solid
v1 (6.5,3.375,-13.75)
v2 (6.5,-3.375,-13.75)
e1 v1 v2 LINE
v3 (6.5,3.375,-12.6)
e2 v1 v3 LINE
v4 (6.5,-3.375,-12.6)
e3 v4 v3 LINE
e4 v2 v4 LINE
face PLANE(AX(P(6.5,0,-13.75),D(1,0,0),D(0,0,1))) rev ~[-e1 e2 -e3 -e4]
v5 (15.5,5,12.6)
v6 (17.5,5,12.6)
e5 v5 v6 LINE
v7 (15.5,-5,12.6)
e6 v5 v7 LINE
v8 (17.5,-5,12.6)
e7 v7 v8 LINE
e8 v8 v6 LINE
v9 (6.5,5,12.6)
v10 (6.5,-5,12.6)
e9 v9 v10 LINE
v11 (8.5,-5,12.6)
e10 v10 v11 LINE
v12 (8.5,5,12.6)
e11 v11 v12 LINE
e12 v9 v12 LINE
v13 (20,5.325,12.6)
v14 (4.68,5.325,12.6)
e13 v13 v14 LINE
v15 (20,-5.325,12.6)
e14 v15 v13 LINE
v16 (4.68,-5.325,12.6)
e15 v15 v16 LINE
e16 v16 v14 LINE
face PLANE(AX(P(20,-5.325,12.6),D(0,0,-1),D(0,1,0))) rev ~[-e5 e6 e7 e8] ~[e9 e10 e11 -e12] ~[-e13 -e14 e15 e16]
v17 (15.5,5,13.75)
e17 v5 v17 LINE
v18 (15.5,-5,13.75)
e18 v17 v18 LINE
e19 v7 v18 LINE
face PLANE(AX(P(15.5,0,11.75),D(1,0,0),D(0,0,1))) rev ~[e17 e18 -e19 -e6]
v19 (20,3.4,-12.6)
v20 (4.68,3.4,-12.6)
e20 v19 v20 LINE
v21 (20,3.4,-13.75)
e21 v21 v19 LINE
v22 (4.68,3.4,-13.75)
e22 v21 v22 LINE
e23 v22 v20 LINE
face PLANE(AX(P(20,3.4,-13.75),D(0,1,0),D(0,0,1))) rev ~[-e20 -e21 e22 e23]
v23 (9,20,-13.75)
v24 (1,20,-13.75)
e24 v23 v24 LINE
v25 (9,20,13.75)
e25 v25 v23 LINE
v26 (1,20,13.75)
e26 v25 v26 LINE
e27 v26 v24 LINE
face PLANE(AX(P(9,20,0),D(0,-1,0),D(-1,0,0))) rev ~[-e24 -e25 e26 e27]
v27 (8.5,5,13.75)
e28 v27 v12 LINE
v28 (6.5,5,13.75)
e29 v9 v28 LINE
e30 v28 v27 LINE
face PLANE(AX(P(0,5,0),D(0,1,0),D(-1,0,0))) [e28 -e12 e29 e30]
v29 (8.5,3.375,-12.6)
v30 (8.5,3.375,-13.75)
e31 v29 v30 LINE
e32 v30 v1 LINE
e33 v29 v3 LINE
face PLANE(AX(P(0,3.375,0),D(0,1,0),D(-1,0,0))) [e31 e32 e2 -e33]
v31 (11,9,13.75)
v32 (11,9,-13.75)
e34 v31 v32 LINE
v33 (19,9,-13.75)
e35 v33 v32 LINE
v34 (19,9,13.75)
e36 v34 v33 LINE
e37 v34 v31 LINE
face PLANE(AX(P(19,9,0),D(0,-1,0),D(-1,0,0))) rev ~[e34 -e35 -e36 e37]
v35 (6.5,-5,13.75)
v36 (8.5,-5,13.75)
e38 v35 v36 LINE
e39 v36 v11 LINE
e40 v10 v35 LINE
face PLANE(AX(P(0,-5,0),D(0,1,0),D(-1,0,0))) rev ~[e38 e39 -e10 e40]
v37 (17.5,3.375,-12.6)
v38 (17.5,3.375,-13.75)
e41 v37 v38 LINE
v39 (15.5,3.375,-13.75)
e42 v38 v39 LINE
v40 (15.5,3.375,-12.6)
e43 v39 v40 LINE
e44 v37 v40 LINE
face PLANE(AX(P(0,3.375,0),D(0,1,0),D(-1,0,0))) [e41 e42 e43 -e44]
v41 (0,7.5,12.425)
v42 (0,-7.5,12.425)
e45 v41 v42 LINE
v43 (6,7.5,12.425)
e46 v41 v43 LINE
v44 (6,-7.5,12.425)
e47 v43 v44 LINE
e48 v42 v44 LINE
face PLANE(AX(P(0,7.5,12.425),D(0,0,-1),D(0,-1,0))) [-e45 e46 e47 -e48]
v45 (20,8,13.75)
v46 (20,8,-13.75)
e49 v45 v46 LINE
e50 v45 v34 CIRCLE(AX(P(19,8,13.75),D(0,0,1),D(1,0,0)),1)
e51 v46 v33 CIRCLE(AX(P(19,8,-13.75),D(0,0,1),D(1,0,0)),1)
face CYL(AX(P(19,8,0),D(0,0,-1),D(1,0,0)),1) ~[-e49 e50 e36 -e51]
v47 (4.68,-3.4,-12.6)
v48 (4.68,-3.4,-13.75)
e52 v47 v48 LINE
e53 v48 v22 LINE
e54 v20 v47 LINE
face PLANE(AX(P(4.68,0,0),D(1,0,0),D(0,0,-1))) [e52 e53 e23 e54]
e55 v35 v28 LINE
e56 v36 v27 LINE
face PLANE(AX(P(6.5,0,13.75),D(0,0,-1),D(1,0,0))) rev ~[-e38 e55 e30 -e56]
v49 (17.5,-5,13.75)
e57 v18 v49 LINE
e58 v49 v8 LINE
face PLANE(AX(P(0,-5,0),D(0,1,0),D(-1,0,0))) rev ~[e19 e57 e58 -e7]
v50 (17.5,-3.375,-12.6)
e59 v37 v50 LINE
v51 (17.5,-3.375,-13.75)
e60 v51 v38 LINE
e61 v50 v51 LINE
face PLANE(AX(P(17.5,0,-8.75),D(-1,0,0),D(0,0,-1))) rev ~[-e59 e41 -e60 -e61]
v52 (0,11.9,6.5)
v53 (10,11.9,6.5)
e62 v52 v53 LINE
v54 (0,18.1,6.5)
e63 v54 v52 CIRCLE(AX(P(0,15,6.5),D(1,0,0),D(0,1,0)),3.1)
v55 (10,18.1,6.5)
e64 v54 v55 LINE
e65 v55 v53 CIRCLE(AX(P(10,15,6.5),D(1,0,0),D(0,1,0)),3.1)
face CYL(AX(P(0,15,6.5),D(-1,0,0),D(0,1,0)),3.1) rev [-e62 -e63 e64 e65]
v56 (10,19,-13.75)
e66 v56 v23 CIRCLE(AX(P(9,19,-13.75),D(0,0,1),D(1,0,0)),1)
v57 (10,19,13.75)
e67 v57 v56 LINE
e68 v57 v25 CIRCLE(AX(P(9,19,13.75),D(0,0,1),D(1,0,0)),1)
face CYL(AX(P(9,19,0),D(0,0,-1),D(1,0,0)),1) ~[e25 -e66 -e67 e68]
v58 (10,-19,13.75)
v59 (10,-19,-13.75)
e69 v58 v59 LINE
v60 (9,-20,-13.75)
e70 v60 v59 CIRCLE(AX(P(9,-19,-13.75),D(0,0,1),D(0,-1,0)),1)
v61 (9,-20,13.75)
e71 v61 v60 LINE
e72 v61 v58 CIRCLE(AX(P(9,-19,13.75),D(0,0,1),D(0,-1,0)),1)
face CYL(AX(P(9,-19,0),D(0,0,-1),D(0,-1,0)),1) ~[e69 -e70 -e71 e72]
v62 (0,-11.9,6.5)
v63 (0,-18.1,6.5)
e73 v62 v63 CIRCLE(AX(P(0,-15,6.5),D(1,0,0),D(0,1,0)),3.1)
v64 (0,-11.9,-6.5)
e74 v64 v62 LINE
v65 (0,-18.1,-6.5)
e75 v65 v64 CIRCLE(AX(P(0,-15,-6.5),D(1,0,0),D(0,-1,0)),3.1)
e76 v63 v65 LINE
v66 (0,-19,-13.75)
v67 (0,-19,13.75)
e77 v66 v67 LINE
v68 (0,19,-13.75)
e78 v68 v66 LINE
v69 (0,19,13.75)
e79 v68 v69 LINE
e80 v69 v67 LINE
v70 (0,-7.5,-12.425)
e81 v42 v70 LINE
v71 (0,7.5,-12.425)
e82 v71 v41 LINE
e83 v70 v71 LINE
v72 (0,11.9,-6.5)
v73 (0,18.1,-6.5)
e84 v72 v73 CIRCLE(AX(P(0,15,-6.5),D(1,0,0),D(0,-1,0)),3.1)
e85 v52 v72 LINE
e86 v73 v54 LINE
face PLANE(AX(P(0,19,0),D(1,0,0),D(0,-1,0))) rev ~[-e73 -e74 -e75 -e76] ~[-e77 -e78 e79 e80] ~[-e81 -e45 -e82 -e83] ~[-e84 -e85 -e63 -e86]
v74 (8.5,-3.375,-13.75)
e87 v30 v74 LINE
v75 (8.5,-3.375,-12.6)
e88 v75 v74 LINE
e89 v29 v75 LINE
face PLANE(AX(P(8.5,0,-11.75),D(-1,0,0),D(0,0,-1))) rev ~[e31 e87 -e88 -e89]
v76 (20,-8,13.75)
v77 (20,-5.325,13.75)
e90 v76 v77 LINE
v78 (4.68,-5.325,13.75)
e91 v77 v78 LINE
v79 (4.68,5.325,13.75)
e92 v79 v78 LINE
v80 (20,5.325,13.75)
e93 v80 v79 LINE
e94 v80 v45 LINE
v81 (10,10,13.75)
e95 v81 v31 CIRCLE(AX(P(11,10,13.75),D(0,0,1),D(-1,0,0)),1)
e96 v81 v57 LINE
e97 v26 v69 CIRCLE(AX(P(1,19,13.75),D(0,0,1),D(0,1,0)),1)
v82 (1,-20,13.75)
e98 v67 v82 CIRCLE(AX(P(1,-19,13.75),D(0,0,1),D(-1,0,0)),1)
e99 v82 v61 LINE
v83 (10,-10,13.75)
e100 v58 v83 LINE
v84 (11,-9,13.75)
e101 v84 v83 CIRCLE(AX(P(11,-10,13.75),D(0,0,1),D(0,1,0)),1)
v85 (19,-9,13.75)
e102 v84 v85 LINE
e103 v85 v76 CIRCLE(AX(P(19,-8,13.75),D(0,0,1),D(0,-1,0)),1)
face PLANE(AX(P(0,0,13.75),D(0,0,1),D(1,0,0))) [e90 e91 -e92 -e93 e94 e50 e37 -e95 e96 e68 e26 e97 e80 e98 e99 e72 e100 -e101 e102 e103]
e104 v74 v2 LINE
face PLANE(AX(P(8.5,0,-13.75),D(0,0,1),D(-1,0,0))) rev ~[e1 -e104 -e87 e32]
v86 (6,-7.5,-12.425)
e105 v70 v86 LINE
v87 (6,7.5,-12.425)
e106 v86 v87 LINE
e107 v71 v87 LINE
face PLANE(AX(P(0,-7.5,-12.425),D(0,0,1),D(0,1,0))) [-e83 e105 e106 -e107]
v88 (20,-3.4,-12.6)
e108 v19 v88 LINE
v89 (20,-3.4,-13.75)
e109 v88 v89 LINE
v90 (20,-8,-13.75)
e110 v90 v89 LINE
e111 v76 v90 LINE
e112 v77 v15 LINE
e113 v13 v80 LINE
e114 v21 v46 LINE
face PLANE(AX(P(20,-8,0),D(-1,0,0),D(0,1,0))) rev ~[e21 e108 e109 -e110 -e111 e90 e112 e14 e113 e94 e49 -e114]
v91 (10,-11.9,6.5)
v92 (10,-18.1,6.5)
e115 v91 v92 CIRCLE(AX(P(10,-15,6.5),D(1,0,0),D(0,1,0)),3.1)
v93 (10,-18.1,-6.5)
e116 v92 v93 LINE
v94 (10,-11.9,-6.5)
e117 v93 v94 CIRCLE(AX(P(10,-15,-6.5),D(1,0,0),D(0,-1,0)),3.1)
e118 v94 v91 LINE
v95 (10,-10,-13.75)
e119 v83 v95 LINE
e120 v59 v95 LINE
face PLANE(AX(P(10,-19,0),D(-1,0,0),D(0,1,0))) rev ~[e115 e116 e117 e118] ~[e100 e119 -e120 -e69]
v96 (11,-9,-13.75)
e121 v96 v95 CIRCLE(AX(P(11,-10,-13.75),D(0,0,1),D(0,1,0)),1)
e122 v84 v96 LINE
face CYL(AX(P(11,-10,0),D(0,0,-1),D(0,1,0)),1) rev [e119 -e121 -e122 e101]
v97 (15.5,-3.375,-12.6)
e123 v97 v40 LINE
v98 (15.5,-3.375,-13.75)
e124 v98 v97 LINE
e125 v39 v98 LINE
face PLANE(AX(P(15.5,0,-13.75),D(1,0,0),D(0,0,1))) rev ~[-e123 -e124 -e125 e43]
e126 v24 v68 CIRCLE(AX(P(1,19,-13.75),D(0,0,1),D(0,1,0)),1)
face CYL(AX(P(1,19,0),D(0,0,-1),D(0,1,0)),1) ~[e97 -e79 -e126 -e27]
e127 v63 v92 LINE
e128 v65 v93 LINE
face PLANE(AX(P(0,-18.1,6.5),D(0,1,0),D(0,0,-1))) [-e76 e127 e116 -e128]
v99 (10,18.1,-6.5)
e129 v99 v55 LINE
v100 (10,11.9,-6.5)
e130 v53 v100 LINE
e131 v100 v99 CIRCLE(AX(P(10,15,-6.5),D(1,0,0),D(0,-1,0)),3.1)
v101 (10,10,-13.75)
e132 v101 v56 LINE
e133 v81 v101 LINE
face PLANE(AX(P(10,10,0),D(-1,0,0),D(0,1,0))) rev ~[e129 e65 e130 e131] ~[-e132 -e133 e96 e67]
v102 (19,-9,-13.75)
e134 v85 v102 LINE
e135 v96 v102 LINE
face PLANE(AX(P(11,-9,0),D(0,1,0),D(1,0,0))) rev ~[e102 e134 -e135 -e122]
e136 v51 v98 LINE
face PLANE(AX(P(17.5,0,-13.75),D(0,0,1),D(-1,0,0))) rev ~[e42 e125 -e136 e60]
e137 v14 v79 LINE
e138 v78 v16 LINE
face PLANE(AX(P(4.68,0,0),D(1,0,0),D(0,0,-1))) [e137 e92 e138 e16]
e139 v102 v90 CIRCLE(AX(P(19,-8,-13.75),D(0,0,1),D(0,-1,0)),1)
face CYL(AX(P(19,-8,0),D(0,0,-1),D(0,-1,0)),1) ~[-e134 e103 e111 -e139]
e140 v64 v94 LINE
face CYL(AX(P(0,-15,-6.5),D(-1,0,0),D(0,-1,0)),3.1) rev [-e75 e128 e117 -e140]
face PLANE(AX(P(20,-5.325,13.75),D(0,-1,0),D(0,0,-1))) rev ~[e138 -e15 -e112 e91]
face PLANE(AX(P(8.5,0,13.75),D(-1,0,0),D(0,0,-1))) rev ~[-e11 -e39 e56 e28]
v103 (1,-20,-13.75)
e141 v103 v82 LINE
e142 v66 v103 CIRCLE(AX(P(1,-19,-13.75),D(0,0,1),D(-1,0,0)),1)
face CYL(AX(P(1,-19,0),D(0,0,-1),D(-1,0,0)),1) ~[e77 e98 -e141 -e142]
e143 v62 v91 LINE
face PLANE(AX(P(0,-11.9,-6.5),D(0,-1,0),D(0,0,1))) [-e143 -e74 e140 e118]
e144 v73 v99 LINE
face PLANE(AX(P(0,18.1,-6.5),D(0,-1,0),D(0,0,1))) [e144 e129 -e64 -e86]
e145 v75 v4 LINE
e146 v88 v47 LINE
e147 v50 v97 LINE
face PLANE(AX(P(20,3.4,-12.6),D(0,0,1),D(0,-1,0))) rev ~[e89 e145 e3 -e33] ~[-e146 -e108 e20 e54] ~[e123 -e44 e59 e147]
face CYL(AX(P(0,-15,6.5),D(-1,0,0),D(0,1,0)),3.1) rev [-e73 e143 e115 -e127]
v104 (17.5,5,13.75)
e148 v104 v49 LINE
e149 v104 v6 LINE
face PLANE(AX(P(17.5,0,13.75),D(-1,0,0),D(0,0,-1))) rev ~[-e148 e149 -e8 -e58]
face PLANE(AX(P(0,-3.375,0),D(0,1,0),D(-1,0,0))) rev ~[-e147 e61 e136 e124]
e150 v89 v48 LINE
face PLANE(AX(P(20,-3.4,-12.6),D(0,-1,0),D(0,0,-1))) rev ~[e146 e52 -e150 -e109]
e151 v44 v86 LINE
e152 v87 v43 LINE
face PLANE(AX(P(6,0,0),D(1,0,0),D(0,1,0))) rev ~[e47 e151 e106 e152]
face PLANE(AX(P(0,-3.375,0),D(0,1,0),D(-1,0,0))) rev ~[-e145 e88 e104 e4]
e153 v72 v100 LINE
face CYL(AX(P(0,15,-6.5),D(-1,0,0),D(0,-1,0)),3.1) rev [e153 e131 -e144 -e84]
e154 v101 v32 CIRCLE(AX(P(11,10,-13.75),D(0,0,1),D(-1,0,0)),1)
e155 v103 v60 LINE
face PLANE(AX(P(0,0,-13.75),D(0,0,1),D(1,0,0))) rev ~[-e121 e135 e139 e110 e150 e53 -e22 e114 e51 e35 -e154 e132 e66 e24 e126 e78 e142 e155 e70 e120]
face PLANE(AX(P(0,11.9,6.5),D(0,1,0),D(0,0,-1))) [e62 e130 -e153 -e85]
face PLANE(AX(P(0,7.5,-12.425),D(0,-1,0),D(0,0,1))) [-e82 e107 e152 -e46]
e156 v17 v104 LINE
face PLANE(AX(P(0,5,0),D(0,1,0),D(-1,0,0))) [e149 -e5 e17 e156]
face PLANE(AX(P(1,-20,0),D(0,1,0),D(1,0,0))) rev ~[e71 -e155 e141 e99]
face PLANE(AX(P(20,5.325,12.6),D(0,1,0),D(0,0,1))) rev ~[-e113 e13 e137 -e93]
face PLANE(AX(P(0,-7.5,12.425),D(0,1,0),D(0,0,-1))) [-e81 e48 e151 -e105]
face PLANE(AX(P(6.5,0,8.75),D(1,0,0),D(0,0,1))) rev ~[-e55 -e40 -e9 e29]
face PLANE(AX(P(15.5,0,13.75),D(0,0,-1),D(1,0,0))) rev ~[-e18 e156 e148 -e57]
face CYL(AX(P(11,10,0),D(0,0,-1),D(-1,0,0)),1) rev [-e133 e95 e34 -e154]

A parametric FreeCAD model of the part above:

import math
import FreeCAD as App
import Part
import Sketcher


def add_polygon(sketch, points):
    """Adds a closed chain of lines whose ends are joined by coincident constraints."""
    first, n = sketch.GeometryCount, len(points)
    for a, b in zip(points, points[1:] + points[:1]):
        sketch.addGeometry(Part.LineSegment(App.Vector(*a, 0), App.Vector(*b, 0)), False)
    for i in range(n):
        sketch.addConstraint(Sketcher.Constraint("Coincident", first + i, 2, first + (i + 1) % n, 1))

doc = App.newDocument("Part")
body = doc.addObject("PartDesign::Body", "Body")

sketch1 = body.newObject("Sketcher::SketchObject", "Sketch")
sketch1.AttachmentSupport = (doc.getObject("XY_Plane"), [""])
sketch1.MapMode = "FlatFace"
sketch1.addGeometry([
    Part.ArcOfCircle(Part.Circle(App.Vector(1, 19, 0), App.Vector(0, 0, 1), 1), math.radians(90), math.radians(180)),
    Part.LineSegment(App.Vector(0, 19, 0), App.Vector(0, -19, 0)),
    Part.ArcOfCircle(Part.Circle(App.Vector(1, -19, 0), App.Vector(0, 0, 1), 1), math.radians(180), math.radians(270)),
    Part.LineSegment(App.Vector(1, -20, 0), App.Vector(9, -20, 0)),
    Part.ArcOfCircle(Part.Circle(App.Vector(9, -19, 0), App.Vector(0, 0, 1), 1), math.radians(-90), math.radians(0)),
    Part.LineSegment(App.Vector(10, -19, 0), App.Vector(10, -10, 0)),
    Part.ArcOfCircle(Part.Circle(App.Vector(11, -10, 0), App.Vector(0, 0, 1), 1), math.radians(90), math.radians(180)),
    Part.LineSegment(App.Vector(11, -9, 0), App.Vector(19, -9, 0)),
    Part.ArcOfCircle(Part.Circle(App.Vector(19, -8, 0), App.Vector(0, 0, 1), 1), math.radians(-90), math.radians(0)),
    Part.LineSegment(App.Vector(20, -8, 0), App.Vector(20, 8, 0)),
    Part.ArcOfCircle(Part.Circle(App.Vector(19, 8, 0), App.Vector(0, 0, 1), 1), math.radians(0), math.radians(90)),
    Part.LineSegment(App.Vector(19, 9, 0), App.Vector(11, 9, 0)),
    Part.ArcOfCircle(Part.Circle(App.Vector(11, 10, 0), App.Vector(0, 0, 1), 1), math.radians(180), math.radians(270)),
    Part.LineSegment(App.Vector(10, 10, 0), App.Vector(10, 19, 0)),
    Part.ArcOfCircle(Part.Circle(App.Vector(9, 19, 0), App.Vector(0, 0, 1), 1), math.radians(0), math.radians(90)),
    Part.LineSegment(App.Vector(9, 20, 0), App.Vector(1, 20, 0)),
], False)
sketch1.addConstraint([
    Sketcher.Constraint("Tangent", 0, 2, 1, 1),
    Sketcher.Constraint("Tangent", 1, 2, 2, 1),
    Sketcher.Constraint("Tangent", 2, 2, 3, 1),
    Sketcher.Constraint("Tangent", 3, 2, 4, 1),
    Sketcher.Constraint("Tangent", 4, 2, 5, 1),
    Sketcher.Constraint("Tangent", 5, 2, 6, 2),
    Sketcher.Constraint("Tangent", 6, 1, 7, 1),
    Sketcher.Constraint("Tangent", 7, 2, 8, 1),
    Sketcher.Constraint("Tangent", 8, 2, 9, 1),
    Sketcher.Constraint("Tangent", 9, 2, 10, 1),
    Sketcher.Constraint("Tangent", 10, 2, 11, 1),
    Sketcher.Constraint("Tangent", 11, 2, 12, 2),
    Sketcher.Constraint("Tangent", 12, 1, 13, 1),
    Sketcher.Constraint("Tangent", 13, 2, 14, 1),
    Sketcher.Constraint("Tangent", 14, 2, 15, 1),
    Sketcher.Constraint("Tangent", 15, 2, 0, 1),
    Sketcher.Constraint("Vertical", 1),
    Sketcher.Constraint("Horizontal", 3),
    Sketcher.Constraint("Vertical", 5),
    Sketcher.Constraint("Horizontal", 7),
    Sketcher.Constraint("Vertical", 9),
    Sketcher.Constraint("Horizontal", 11),
    Sketcher.Constraint("Vertical", 13),
    Sketcher.Constraint("Horizontal", 15),
    Sketcher.Constraint("Equal", 0, 2),
    Sketcher.Constraint("Equal", 2, 4),
    Sketcher.Constraint("Equal", 4, 6),
    Sketcher.Constraint("Equal", 6, 8),
    Sketcher.Constraint("Equal", 8, 10),
    Sketcher.Constraint("Equal", 10, 12),
    Sketcher.Constraint("Equal", 12, 14),
    Sketcher.Constraint("Symmetric", 0, 2, 1, 2, -1, 1),
    Sketcher.Constraint("Symmetric", 6, 3, 12, 3, -1),
    Sketcher.Constraint("Equal", 3, 7),
    Sketcher.Constraint("Radius", 0, 1.0),
    Sketcher.Constraint("DistanceX", 3, 1, 3, 2, 8.0),
    Sketcher.Constraint("DistanceY", 1, 2, 1, 1, 38.0),
    Sketcher.Constraint("DistanceY", 5, 1, 5, 2, 9.0),
])
pad1 = body.newObject("PartDesign::Pad", "Pad")
pad1.Profile = sketch1
pad1.Length = 27.5
pad1.Midplane = True

sketch2 = body.newObject("Sketcher::SketchObject", "Sketch001")
sketch2.AttachmentSupport = (doc.getObject("YZ_Plane"), [""])
sketch2.MapMode = "FlatFace"
sketch2.addGeometry([
    Part.LineSegment(App.Vector(18.1, -6.5, 0), App.Vector(18.1, 6.5, 0)),
    Part.ArcOfCircle(Part.Circle(App.Vector(15, 6.5, 0), App.Vector(0, 0, 1), 3.1), math.radians(0), math.radians(180)),
    Part.LineSegment(App.Vector(11.9, 6.5, 0), App.Vector(11.9, -6.5, 0)),
    Part.ArcOfCircle(Part.Circle(App.Vector(15, -6.5, 0), App.Vector(0, 0, 1), 3.1), math.radians(180), math.radians(360)),
], False)
sketch2.addConstraint([
    Sketcher.Constraint("Tangent", 0, 2, 1, 1),
    Sketcher.Constraint("Tangent", 1, 2, 2, 1),
    Sketcher.Constraint("Tangent", 2, 2, 3, 1),
    Sketcher.Constraint("Tangent", 3, 2, 0, 1),
    Sketcher.Constraint("Vertical", 0),
    Sketcher.Constraint("Vertical", 2),
    Sketcher.Constraint("Radius", 1, 3.1),
    Sketcher.Constraint("DistanceY", 0, 1, 0, 2, 13.0),
    Sketcher.Constraint("DistanceX", -1, 1, 1, 3, 15.0),
    Sketcher.Constraint("DistanceY", -1, 1, 1, 3, 6.5),
])
pocket1 = body.newObject("PartDesign::Pocket", "Pocket")
pocket1.Profile = sketch2
pocket1.Length = 10
pocket1.Reversed = True

sketch3 = body.newObject("Sketcher::SketchObject", "Sketch002")
sketch3.AttachmentSupport = (doc.getObject("YZ_Plane"), [""])
sketch3.MapMode = "FlatFace"
sketch3.addGeometry([
    Part.LineSegment(App.Vector(-11.9, -6.5, 0), App.Vector(-11.9, 6.5, 0)),
    Part.ArcOfCircle(Part.Circle(App.Vector(-15, 6.5, 0), App.Vector(0, 0, 1), 3.1), math.radians(0), math.radians(180)),
    Part.LineSegment(App.Vector(-18.1, 6.5, 0), App.Vector(-18.1, -6.5, 0)),
    Part.ArcOfCircle(Part.Circle(App.Vector(-15, -6.5, 0), App.Vector(0, 0, 1), 3.1), math.radians(180), math.radians(360)),
], False)
sketch3.addConstraint([
    Sketcher.Constraint("Tangent", 0, 2, 1, 1),
    Sketcher.Constraint("Tangent", 1, 2, 2, 1),
    Sketcher.Constraint("Tangent", 2, 2, 3, 1),
    Sketcher.Constraint("Tangent", 3, 2, 0, 1),
    Sketcher.Constraint("Vertical", 0),
    Sketcher.Constraint("Vertical", 2),
    Sketcher.Constraint("Radius", 1, 3.1),
    Sketcher.Constraint("DistanceY", 0, 1, 0, 2, 13.0),
    Sketcher.Constraint("DistanceX", 1, 3, -1, 1, 15.0),
    Sketcher.Constraint("DistanceY", -1, 1, 1, 3, 6.5),
])
pocket2 = body.newObject("PartDesign::Pocket", "Pocket001")
pocket2.Profile = sketch3
pocket2.Length = 10
pocket2.Reversed = True

sketch4 = body.newObject("Sketcher::SketchObject", "Sketch003")
sketch4.AttachmentSupport = (doc.getObject("YZ_Plane"), [""])
sketch4.MapMode = "FlatFace"
sketch4.AttachmentOffset = App.Placement(App.Vector(0, 0, 20), App.Rotation())
add_polygon(sketch4, [(5.3, 12.6), (5.3, 13.8), (-5.3, 13.8), (-5.3, 12.6)])
sketch4.addConstraint([
    Sketcher.Constraint("Vertical", 0),
    Sketcher.Constraint("Horizontal", 1),
    Sketcher.Constraint("Vertical", 2),
    Sketcher.Constraint("Horizontal", 3),
    Sketcher.Constraint("DistanceX", 1, 2, 1, 1, 10.65),
    Sketcher.Constraint("DistanceY", 0, 1, 0, 2, 1.15),
    Sketcher.Constraint("DistanceY", -1, 1, 2, 2, 12.6),
    Sketcher.Constraint("DistanceX", -1, 1, 0, 2, 5.325),
])
pocket3 = body.newObject("PartDesign::Pocket", "Pocket002")
pocket3.Profile = sketch4
pocket3.Length = 15.32

sketch5 = body.newObject("Sketcher::SketchObject", "Sketch004")
sketch5.AttachmentSupport = (doc.getObject("YZ_Plane"), [""])
sketch5.MapMode = "FlatFace"
sketch5.AttachmentOffset = App.Placement(App.Vector(0, 0, 20), App.Rotation())
add_polygon(sketch5, [(3.4, -13.8), (3.4, -12.6), (-3.4, -12.6), (-3.4, -13.8)])
sketch5.addConstraint([
    Sketcher.Constraint("Vertical", 0),
    Sketcher.Constraint("Horizontal", 1),
    Sketcher.Constraint("Vertical", 2),
    Sketcher.Constraint("Horizontal", 3),
    Sketcher.Constraint("DistanceX", 1, 2, 1, 1, 6.8),
    Sketcher.Constraint("DistanceY", 0, 1, 0, 2, 1.15),
    Sketcher.Constraint("DistanceX", -1, 1, 0, 2, 3.4),
    Sketcher.Constraint("DistanceY", 0, 2, -1, 1, 12.6),
])
pocket4 = body.newObject("PartDesign::Pocket", "Pocket003")
pocket4.Profile = sketch5
pocket4.Length = 15.32

sketch6 = body.newObject("Sketcher::SketchObject", "Sketch005")
sketch6.AttachmentSupport = (doc.getObject("XZ_Plane"), [""])
sketch6.MapMode = "FlatFace"
add_polygon(sketch6, [(17.5, 8.8), (6.5, 8.8), (6.5, 13.8), (8.5, 13.8), (8.5, 11.8), (15.5, 11.8), (15.5, 13.8), (17.5, 13.8)])
sketch6.addConstraint([
    Sketcher.Constraint("Horizontal", 0),
    Sketcher.Constraint("Vertical", 1),
    Sketcher.Constraint("Horizontal", 2),
    Sketcher.Constraint("Vertical", 3),
    Sketcher.Constraint("Horizontal", 4),
    Sketcher.Constraint("Vertical", 5),
    Sketcher.Constraint("Horizontal", 6),
    Sketcher.Constraint("Vertical", 7),
    Sketcher.Constraint("Horizontal", 2, 2, 5, 2),
    Sketcher.Constraint("Equal", 2, 6),
    Sketcher.Constraint("Equal", 6, 3),
    Sketcher.Constraint("DistanceX", 0, 2, 0, 1, 11.0),
    Sketcher.Constraint("DistanceX", 2, 1, 2, 2, 2.0),
    Sketcher.Constraint("DistanceY", 1, 1, 1, 2, 5.0),
    Sketcher.Constraint("DistanceX", -1, 1, 0, 2, 6.5),
    Sketcher.Constraint("DistanceY", -1, 1, 0, 2, 8.75),
])
pad2 = body.newObject("PartDesign::Pad", "Pad001")
pad2.Profile = sketch6
pad2.Length = 10
pad2.Midplane = True

sketch7 = body.newObject("Sketcher::SketchObject", "Sketch006")
sketch7.AttachmentSupport = (doc.getObject("XZ_Plane"), [""])
sketch7.MapMode = "FlatFace"
add_polygon(sketch7, [(6.5, -13.8), (6.5, -8.8), (17.5, -8.8), (17.5, -13.8), (15.5, -13.8), (15.5, -11.8), (8.5, -11.8), (8.5, -13.8)])
sketch7.addConstraint([
    Sketcher.Constraint("Vertical", 0),
    Sketcher.Constraint("Horizontal", 1),
    Sketcher.Constraint("Vertical", 2),
    Sketcher.Constraint("Horizontal", 3),
    Sketcher.Constraint("Vertical", 4),
    Sketcher.Constraint("Horizontal", 5),
    Sketcher.Constraint("Vertical", 6),
    Sketcher.Constraint("Horizontal", 7),
    Sketcher.Constraint("Horizontal", 3, 2, 6, 2),
    Sketcher.Constraint("Equal", 3, 7),
    Sketcher.Constraint("Equal", 7, 4),
    Sketcher.Constraint("DistanceX", 1, 1, 1, 2, 11.0),
    Sketcher.Constraint("DistanceX", 3, 2, 3, 1, 2.0),
    Sketcher.Constraint("DistanceY", 0, 1, 0, 2, 5.0),
    Sketcher.Constraint("DistanceX", -1, 1, 0, 2, 6.5),
    Sketcher.Constraint("DistanceY", 0, 2, -1, 1, 8.75),
])
pad3 = body.newObject("PartDesign::Pad", "Pad002")
pad3.Profile = sketch7
pad3.Length = 6.75
pad3.Midplane = True

sketch8 = body.newObject("Sketcher::SketchObject", "Sketch007")
sketch8.AttachmentSupport = (doc.getObject("YZ_Plane"), [""])
sketch8.MapMode = "FlatFace"
add_polygon(sketch8, [(8, -12), (8, 12), (-8, 12), (-8, -12)])
sketch8.addConstraint([
    Sketcher.Constraint("Vertical", 0),
    Sketcher.Constraint("Horizontal", 1),
    Sketcher.Constraint("Vertical", 2),
    Sketcher.Constraint("Horizontal", 3),
    Sketcher.Constraint("Symmetric", 0, 2, 2, 2, -1, 1),
    Sketcher.Constraint("DistanceX", 1, 2, 1, 1, 15.0),
    Sketcher.Constraint("DistanceY", 0, 1, 0, 2, 24.85),
])
pocket5 = body.newObject("PartDesign::Pocket", "Pocket004")
pocket5.Profile = sketch8
pocket5.Length = 6
pocket5.Reversed = True

doc.recompute()
